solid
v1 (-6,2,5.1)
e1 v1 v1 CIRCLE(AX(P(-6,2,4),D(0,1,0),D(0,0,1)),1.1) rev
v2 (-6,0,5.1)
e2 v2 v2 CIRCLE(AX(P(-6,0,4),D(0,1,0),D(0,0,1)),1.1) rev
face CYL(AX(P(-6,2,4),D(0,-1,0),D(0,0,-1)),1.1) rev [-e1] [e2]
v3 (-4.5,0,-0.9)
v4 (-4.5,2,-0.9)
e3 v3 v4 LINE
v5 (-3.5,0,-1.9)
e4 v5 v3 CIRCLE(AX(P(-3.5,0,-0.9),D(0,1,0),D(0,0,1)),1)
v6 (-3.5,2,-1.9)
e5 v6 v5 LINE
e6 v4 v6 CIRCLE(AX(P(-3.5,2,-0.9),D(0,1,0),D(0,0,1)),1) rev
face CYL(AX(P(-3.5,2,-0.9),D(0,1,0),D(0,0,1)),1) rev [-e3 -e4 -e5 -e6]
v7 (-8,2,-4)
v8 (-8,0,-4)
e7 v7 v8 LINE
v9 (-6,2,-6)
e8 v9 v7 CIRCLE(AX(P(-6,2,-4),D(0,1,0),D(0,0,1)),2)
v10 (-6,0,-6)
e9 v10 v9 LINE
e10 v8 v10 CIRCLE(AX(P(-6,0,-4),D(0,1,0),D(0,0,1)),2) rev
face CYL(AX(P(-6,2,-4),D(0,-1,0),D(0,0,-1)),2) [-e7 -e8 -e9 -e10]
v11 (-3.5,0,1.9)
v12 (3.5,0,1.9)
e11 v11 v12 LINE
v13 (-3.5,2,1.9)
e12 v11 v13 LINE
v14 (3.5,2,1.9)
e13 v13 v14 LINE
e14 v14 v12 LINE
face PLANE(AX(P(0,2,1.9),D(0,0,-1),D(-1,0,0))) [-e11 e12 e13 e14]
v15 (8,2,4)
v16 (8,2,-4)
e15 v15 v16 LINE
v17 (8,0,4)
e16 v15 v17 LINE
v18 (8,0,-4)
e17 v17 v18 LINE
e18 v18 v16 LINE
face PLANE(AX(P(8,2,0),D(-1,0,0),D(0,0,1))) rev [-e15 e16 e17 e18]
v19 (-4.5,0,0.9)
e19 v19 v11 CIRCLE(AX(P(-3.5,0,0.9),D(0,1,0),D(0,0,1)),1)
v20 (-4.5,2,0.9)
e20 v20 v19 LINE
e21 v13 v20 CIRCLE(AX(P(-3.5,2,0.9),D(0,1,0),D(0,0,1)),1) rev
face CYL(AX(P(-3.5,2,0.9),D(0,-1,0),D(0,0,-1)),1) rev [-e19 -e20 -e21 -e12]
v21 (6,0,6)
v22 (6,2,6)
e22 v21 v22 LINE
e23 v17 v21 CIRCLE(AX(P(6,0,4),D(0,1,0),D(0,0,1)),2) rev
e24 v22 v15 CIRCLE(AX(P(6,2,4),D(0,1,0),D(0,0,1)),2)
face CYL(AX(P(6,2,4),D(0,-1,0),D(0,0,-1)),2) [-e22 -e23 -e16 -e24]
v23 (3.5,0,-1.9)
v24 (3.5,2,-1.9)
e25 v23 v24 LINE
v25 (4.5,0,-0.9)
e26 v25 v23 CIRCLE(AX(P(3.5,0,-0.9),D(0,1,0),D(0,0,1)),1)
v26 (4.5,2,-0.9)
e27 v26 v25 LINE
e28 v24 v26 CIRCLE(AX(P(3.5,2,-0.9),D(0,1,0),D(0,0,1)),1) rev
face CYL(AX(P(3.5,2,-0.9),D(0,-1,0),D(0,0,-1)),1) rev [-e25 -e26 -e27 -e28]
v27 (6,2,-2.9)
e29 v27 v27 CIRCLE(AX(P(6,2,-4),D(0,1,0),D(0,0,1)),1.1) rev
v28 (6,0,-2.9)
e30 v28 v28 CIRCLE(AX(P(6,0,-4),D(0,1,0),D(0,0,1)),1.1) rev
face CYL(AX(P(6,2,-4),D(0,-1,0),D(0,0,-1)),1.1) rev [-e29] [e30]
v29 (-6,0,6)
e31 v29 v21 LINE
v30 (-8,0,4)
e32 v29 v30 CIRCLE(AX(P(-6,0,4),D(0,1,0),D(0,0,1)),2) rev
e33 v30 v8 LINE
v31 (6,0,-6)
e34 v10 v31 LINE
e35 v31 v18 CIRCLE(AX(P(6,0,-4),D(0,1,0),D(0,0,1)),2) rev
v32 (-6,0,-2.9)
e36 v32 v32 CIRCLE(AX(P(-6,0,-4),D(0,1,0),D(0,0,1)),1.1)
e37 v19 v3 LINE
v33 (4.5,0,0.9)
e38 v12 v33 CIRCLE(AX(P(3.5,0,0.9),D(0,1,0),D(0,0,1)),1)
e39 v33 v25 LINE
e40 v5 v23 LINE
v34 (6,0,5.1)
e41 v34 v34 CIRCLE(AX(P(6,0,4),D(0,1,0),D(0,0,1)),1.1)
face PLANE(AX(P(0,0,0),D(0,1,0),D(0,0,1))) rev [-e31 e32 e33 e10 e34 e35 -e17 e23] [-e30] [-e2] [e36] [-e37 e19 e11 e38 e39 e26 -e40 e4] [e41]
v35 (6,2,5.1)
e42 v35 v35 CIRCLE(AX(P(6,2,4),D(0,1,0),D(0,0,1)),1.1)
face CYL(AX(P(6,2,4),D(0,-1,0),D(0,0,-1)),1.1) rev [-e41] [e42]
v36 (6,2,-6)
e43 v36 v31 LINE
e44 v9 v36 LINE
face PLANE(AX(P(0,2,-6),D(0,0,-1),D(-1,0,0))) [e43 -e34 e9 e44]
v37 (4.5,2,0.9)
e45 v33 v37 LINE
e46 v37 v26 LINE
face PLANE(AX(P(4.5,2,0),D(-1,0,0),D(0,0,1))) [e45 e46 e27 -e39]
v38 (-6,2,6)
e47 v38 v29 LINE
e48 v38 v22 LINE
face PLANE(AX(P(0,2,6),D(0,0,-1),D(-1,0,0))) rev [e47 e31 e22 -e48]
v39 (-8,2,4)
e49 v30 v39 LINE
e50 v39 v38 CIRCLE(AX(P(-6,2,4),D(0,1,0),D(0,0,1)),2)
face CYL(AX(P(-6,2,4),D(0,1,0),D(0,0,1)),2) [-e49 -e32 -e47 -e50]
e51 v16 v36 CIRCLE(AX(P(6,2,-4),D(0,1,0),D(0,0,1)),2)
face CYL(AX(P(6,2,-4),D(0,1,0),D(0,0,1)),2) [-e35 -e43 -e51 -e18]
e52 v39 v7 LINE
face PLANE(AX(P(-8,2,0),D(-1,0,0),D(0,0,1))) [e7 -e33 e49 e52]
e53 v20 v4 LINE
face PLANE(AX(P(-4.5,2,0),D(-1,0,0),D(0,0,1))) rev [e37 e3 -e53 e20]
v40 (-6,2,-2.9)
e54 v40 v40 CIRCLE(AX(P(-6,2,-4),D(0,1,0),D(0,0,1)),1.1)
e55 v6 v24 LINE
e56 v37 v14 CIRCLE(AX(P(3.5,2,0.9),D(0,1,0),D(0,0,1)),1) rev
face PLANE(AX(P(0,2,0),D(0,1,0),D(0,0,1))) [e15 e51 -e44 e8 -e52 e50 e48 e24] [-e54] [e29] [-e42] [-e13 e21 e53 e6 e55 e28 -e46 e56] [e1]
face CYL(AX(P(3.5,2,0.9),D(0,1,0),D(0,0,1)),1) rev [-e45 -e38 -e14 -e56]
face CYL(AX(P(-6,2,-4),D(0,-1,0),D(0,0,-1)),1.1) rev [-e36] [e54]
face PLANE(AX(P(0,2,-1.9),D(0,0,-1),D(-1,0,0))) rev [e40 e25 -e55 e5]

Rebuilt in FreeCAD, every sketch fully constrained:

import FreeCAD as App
import Part
import Sketcher

V = App.Vector
Q = App.Units.Quantity


def edges_at(feature, points):
    """Names of the edges that pass closest to the given points."""
    edges = feature.Shape.Edges
    near = lambda p: min(range(len(edges)), key=lambda i: edges[i].distToShape(Part.Vertex(*p))[0])
    return sorted({f"Edge{near(p) + 1}" for p in points})


def add_polygon(sketch, points):
    """Adds a closed chain of lines whose ends are joined by coincident constraints."""
    first, n = sketch.GeometryCount, len(points)
    for a, b in zip(points, points[1:] + points[:1]):
        sketch.addGeometry(Part.LineSegment(App.Vector(*a, 0), App.Vector(*b, 0)), False)
    for i in range(n):
        sketch.addConstraint(Sketcher.Constraint("Coincident", first + i, 2, first + (i + 1) % n, 1))

doc = App.newDocument("Part")
params = doc.addObject("Spreadsheet::Sheet", "Params")
for row, (alias, value) in enumerate([
    ("sketch1_diameter", "2.2 mm"),
    ("sketch1_width", "16 mm"),
    ("sketch1_width2", "9 mm"),
    ("sketch1_height", "12 mm"),
    ("sketch1_height2", "3.8 mm"),
    ("pad1_length", "2 mm"),
    ("fillet_radius", "2 mm"),
    ("fillet2_radius", "1 mm"),
], start=1):
    params.set(f"A{row}", alias)
    params.set(f"B{row}", "=" + value)
    params.setAlias(f"B{row}", alias)

body = doc.addObject("PartDesign::Body", "Body")

sketch1 = body.newObject("Sketcher::SketchObject", "Sketch")
sketch1.AttachmentSupport = (doc.getObject("XZ_Plane"), [""])
sketch1.MapMode = "FlatFace"
add_polygon(sketch1, [(-8, -6), (-8, 6), (8, 6), (8, -6)])
sketch1.addGeometry(Part.Circle(V(-6, 4, 0), V(0, 0, 1), 1.1), False)
sketch1.addGeometry(Part.Circle(V(6, 4, 0), V(0, 0, 1), 1.1), False)
sketch1.addGeometry(Part.Circle(V(-6, -4, 0), V(0, 0, 1), 1.1), False)
add_polygon(sketch1, [(4.5, 1.9), (-4.5, 1.9), (-4.5, -1.9), (4.5, -1.9)])
sketch1.addGeometry(Part.Circle(V(6, -4, 0), V(0, 0, 1), 1.1), False)
sketch1.addConstraint(Sketcher.Constraint("Vertical", 0))
sketch1.addConstraint(Sketcher.Constraint("Horizontal", 1))
sketch1.addConstraint(Sketcher.Constraint("Vertical", 2))
sketch1.addConstraint(Sketcher.Constraint("Horizontal", 3))
sketch1.addConstraint(Sketcher.Constraint("Horizontal", 7))
sketch1.addConstraint(Sketcher.Constraint("Vertical", 8))
sketch1.addConstraint(Sketcher.Constraint("Horizontal", 9))
sketch1.addConstraint(Sketcher.Constraint("Vertical", 10))
sketch1.addConstraint(Sketcher.Constraint("Equal", 4, 5))
sketch1.addConstraint(Sketcher.Constraint("Equal", 5, 6))
sketch1.addConstraint(Sketcher.Constraint("Equal", 6, 11))
sketch1.addConstraint(Sketcher.Constraint("Symmetric", 5, 3, 6, 3, -1, 1))
sketch1.addConstraint(Sketcher.Constraint("Symmetric", 4, 3, 11, 3, -1, 1))
sketch1.addConstraint(Sketcher.Constraint("Symmetric", 0, 2, 2, 2, -1, 1))
sketch1.addConstraint(Sketcher.Constraint("Symmetric", 7, 2, 9, 2, -1, 1))
sketch1.addConstraint(Sketcher.Constraint("Symmetric", 4, 3, 5, 3, -2))
sketch1.addConstraint(Sketcher.Constraint("Diameter", 4, Q("2.2 mm")))
sketch1.addConstraint(Sketcher.Constraint("DistanceX", 1, 1, 1, 2, Q("16 mm")))
sketch1.addConstraint(Sketcher.Constraint("DistanceX", 7, 2, 7, 1, Q("9 mm")))
sketch1.addConstraint(Sketcher.Constraint("DistanceY", 0, 1, 0, 2, Q("12 mm")))
sketch1.addConstraint(Sketcher.Constraint("DistanceY", 8, 2, 8, 1, Q("3.8 mm")))
sketch1.addConstraint(Sketcher.Constraint("DistanceX", 4, 3, -1, 1, Q("6 mm")))
sketch1.addConstraint(Sketcher.Constraint("DistanceY", -1, 1, 4, 3, Q("4 mm")))
sketch1.setExpression("Constraints[24]", "Params.sketch1_diameter")
sketch1.setExpression("Constraints[25]", "Params.sketch1_width")
sketch1.setExpression("Constraints[26]", "Params.sketch1_width2")
sketch1.setExpression("Constraints[27]", "Params.sketch1_height")
sketch1.setExpression("Constraints[28]", "Params.sketch1_height2")
pad1 = body.newObject("PartDesign::Pad", "Pad")
pad1.Profile = sketch1
pad1.setExpression("Length", "Params.pad1_length")
pad1.Reversed = True
doc.recompute()

fillet = body.newObject("PartDesign::Fillet", "Fillet")
fillet.Base = (pad1, edges_at(pad1, [
    (-8, 1, 6),
    (-8, 1, -6),
    (8, 1, -6),
    (8, 1, 6),
]))
fillet.setExpression("Radius", "Params.fillet_radius")
doc.recompute()

fillet2 = body.newObject("PartDesign::Fillet", "Fillet001")
fillet2.Base = (fillet, edges_at(fillet, [
    (4.5, 1, -1.9),
    (-4.5, 1, -1.9),
    (-4.5, 1, 1.9),
    (4.5, 1, 1.9),
]))
fillet2.setExpression("Radius", "Params.fillet2_radius")

doc.recompute()
